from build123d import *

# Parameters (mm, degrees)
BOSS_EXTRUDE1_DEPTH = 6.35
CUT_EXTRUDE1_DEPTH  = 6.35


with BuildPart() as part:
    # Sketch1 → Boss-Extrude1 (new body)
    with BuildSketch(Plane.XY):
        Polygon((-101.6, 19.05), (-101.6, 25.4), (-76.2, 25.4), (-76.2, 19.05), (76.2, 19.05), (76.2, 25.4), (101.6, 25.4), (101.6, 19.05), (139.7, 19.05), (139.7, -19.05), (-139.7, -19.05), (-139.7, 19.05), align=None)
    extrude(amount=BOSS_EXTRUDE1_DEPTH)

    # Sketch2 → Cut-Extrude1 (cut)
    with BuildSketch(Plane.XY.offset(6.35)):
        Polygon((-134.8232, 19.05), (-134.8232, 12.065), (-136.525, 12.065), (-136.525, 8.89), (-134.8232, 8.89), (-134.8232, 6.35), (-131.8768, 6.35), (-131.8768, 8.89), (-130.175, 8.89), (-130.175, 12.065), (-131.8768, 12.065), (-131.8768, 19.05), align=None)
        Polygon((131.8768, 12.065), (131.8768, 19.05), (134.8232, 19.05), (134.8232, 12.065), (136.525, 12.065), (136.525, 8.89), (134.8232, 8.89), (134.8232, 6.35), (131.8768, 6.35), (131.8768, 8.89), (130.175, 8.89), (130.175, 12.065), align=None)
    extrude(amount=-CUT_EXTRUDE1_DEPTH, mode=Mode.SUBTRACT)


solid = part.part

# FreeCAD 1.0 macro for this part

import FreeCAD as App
import Part
import Sketcher
from FreeCAD import Vector
Q = App.Units.Quantity

doc = App.newDocument("Part")
body = doc.addObject("PartDesign::Body", "Body")

# Sketch on XY plane
sketch1 = body.newObject("Sketcher::SketchObject", "Sketch")
sketch1.AttachmentSupport = (doc.getObject("XY_Plane"), [""])
sketch1.MapMode = "FlatFace"
sketch1.addGeometry([
    Part.LineSegment(Vector(-101.6, 25.4, 0), Vector(-101.6, 19.05, 0)),  # 0
    Part.LineSegment(Vector(-101.6, 19.05, 0), Vector(-139.7, 19.05, 0)),  # 1
    Part.LineSegment(Vector(-139.7, 19.05, 0), Vector(-139.7, -19.05, 0)),  # 2
    Part.LineSegment(Vector(-139.7, -19.05, 0), Vector(139.7, -19.05, 0)),  # 3
    Part.LineSegment(Vector(139.7, -19.05, 0), Vector(139.7, 19.05, 0)),  # 4
    Part.LineSegment(Vector(139.7, 19.05, 0), Vector(101.6, 19.05, 0)),  # 5
    Part.LineSegment(Vector(101.6, 19.05, 0), Vector(101.6, 25.4, 0)),  # 6
    Part.LineSegment(Vector(101.6, 25.4, 0), Vector(76.2, 25.4, 0)),  # 7
    Part.LineSegment(Vector(76.2, 25.4, 0), Vector(76.2, 19.05, 0)),  # 8
    Part.LineSegment(Vector(76.2, 19.05, 0), Vector(-76.2, 19.05, 0)),  # 9
    Part.LineSegment(Vector(-76.2, 19.05, 0), Vector(-76.2, 25.4, 0)),  # 10
    Part.LineSegment(Vector(-76.2, 25.4, 0), Vector(-101.6, 25.4, 0)),  # 11
], False)
sketch1.addConstraint([
    Sketcher.Constraint("Coincident", 0, 2, 1, 1),
    Sketcher.Constraint("Coincident", 1, 2, 2, 1),
    Sketcher.Constraint("Coincident", 2, 2, 3, 1),
    Sketcher.Constraint("Coincident", 3, 2, 4, 1),
    Sketcher.Constraint("Coincident", 4, 2, 5, 1),
    Sketcher.Constraint("Coincident", 5, 2, 6, 1),
    Sketcher.Constraint("Coincident", 6, 2, 7, 1),
    Sketcher.Constraint("Coincident", 7, 2, 8, 1),
    Sketcher.Constraint("Coincident", 8, 2, 9, 1),
    Sketcher.Constraint("Coincident", 9, 2, 10, 1),
    Sketcher.Constraint("Coincident", 10, 2, 11, 1),
    Sketcher.Constraint("Coincident", 11, 2, 0, 1),
    Sketcher.Constraint("Vertical", 0),
    Sketcher.Constraint("Horizontal", 1),
    Sketcher.Constraint("Vertical", 2),
    Sketcher.Constraint("Horizontal", 3),
    Sketcher.Constraint("Vertical", 4),
    Sketcher.Constraint("Horizontal", 5),
    Sketcher.Constraint("Vertical", 6),
    Sketcher.Constraint("Horizontal", 7),
    Sketcher.Constraint("Vertical", 8),
    Sketcher.Constraint("Horizontal", 9),
    Sketcher.Constraint("Vertical", 10),
    Sketcher.Constraint("Horizontal", 11),
    Sketcher.Constraint("Symmetric", 1, 2, 3, 2, -1, 1),
    Sketcher.Constraint("Symmetric", 0, 2, 5, 2, -2),
    Sketcher.Constraint("Symmetric", 7, 2, 10, 2, -2),
    Sketcher.Constraint("Horizontal", 5, 2, 8, 2),
    Sketcher.Constraint("Equal", 5, 2),
    Sketcher.Constraint("DistanceX", 3, 1, 3, 2, Q("11 in")),
    Sketcher.Constraint("DistanceX", 7, 2, 7, 1, Q("1 in")),
    Sketcher.Constraint("DistanceX", 9, 2, 9, 1, Q("6 in")),
    Sketcher.Constraint("DistanceY", -1, 1, 6, 2, Q("1 in")),
])
pad1 = body.newObject("PartDesign::Pad", "Pad")
pad1.Profile = sketch1
pad1.Length = Q("0.25 in")

# Sketch on XY plane
sketch2 = body.newObject("Sketcher::SketchObject", "Sketch001")
sketch2.AttachmentSupport = (doc.getObject("XY_Plane"), [""])
sketch2.MapMode = "FlatFace"
sketch2.AttachmentOffset = App.Placement(Vector(0, 0, 0.25 * 25.4), App.Rotation())
sketch2.addGeometry([
    Part.LineSegment(Vector(-134.8232, 19.05, 0), Vector(-134.8232, 12.065, 0)),  # 0
    Part.LineSegment(Vector(-134.8232, 12.065, 0), Vector(-136.525, 12.065, 0)),  # 1
    Part.LineSegment(Vector(-136.525, 12.065, 0), Vector(-136.525, 8.89, 0)),  # 2
    Part.LineSegment(Vector(-136.525, 8.89, 0), Vector(-134.8232, 8.89, 0)),  # 3
    Part.LineSegment(Vector(-134.8232, 8.89, 0), Vector(-134.8232, 6.35, 0)),  # 4
    Part.LineSegment(Vector(-134.8232, 6.35, 0), Vector(-131.8768, 6.35, 0)),  # 5
    Part.LineSegment(Vector(-131.8768, 6.35, 0), Vector(-131.8768, 8.89, 0)),  # 6
    Part.LineSegment(Vector(-131.8768, 8.89, 0), Vector(-130.175, 8.89, 0)),  # 7
    Part.LineSegment(Vector(-130.175, 8.89, 0), Vector(-130.175, 12.065, 0)),  # 8
    Part.LineSegment(Vector(-130.175, 12.065, 0), Vector(-131.8768, 12.065, 0)),  # 9
    Part.LineSegment(Vector(-131.8768, 12.065, 0), Vector(-131.8768, 19.05, 0)),  # 10
    Part.LineSegment(Vector(-131.8768, 19.05, 0), Vector(-134.8232, 19.05, 0)),  # 11
    Part.LineSegment(Vector(131.8768, 19.05, 0), Vector(131.8768, 12.065, 0)),  # 12
    Part.LineSegment(Vector(131.8768, 12.065, 0), Vector(130.175, 12.065, 0)),  # 13
    Part.LineSegment(Vector(130.175, 12.065, 0), Vector(130.175, 8.89, 0)),  # 14
    Part.LineSegment(Vector(130.175, 8.89, 0), Vector(131.8768, 8.89, 0)),  # 15
    Part.LineSegment(Vector(131.8768, 8.89, 0), Vector(131.8768, 6.35, 0)),  # 16
    Part.LineSegment(Vector(131.8768, 6.35, 0), Vector(134.8232, 6.35, 0)),  # 17
    Part.LineSegment(Vector(134.8232, 6.35, 0), Vector(134.8232, 8.89, 0)),  # 18
    Part.LineSegment(Vector(134.8232, 8.89, 0), Vector(136.525, 8.89, 0)),  # 19
    Part.LineSegment(Vector(136.525, 8.89, 0), Vector(136.525, 12.065, 0)),  # 20
    Part.LineSegment(Vector(136.525, 12.065, 0), Vector(134.8232, 12.065, 0)),  # 21
    Part.LineSegment(Vector(134.8232, 12.065, 0), Vector(134.8232, 19.05, 0)),  # 22
    Part.LineSegment(Vector(134.8232, 19.05, 0), Vector(131.8768, 19.05, 0)),  # 23
], False)
sketch2.addConstraint([
    Sketcher.Constraint("Coincident", 0, 2, 1, 1),
    Sketcher.Constraint("Coincident", 1, 2, 2, 1),
    Sketcher.Constraint("Coincident", 2, 2, 3, 1),
    Sketcher.Constraint("Coincident", 3, 2, 4, 1),
    Sketcher.Constraint("Coincident", 4, 2, 5, 1),
    Sketcher.Constraint("Coincident", 5, 2, 6, 1),
    Sketcher.Constraint("Coincident", 6, 2, 7, 1),
    Sketcher.Constraint("Coincident", 7, 2, 8, 1),
    Sketcher.Constraint("Coincident", 8, 2, 9, 1),
    Sketcher.Constraint("Coincident", 9, 2, 10, 1),
    Sketcher.Constraint("Coincident", 10, 2, 11, 1),
    Sketcher.Constraint("Coincident", 11, 2, 0, 1),
    Sketcher.Constraint("Coincident", 12, 2, 13, 1),
    Sketcher.Constraint("Coincident", 13, 2, 14, 1),
    Sketcher.Constraint("Coincident", 14, 2, 15, 1),
    Sketcher.Constraint("Coincident", 15, 2, 16, 1),
    Sketcher.Constraint("Coincident", 16, 2, 17, 1),
    Sketcher.Constraint("Coincident", 17, 2, 18, 1),
    Sketcher.Constraint("Coincident", 18, 2, 19, 1),
    Sketcher.Constraint("Coincident", 19, 2, 20, 1),
    Sketcher.Constraint("Coincident", 20, 2, 21, 1),
    Sketcher.Constraint("Coincident", 21, 2, 22, 1),
    Sketcher.Constraint("Coincident", 22, 2, 23, 1),
    Sketcher.Constraint("Coincident", 23, 2, 12, 1),
    Sketcher.Constraint("Vertical", 0),
    Sketcher.Constraint("Horizontal", 1),
    Sketcher.Constraint("Vertical", 2),
    Sketcher.Constraint("Horizontal", 3),
    Sketcher.Constraint("Vertical", 4),
    Sketcher.Constraint("Horizontal", 5),
    Sketcher.Constraint("Vertical", 6),
    Sketcher.Constraint("Horizontal", 7),
    Sketcher.Constraint("Vertical", 8),
    Sketcher.Constraint("Horizontal", 9),
    Sketcher.Constraint("Vertical", 10),
    Sketcher.Constraint("Horizontal", 11),
    Sketcher.Constraint("Vertical", 12),
    Sketcher.Constraint("Horizontal", 13),
    Sketcher.Constraint("Vertical", 14),
    Sketcher.Constraint("Horizontal", 15),
    Sketcher.Constraint("Vertical", 16),
    Sketcher.Constraint("Horizontal", 17),
    Sketcher.Constraint("Vertical", 18),
    Sketcher.Constraint("Horizontal", 19),
    Sketcher.Constraint("Vertical", 20),
    Sketcher.Constraint("Horizontal", 21),
    Sketcher.Constraint("Vertical", 22),
    Sketcher.Constraint("Horizontal", 23),
    Sketcher.Constraint("Symmetric", 9, 2, 12, 2, -2),
    Sketcher.Constraint("Symmetric", 7, 2, 14, 2, -2),
    Sketcher.Constraint("Symmetric", 5, 2, 16, 2, -2),
    Sketcher.Constraint("Symmetric", 3, 2, 18, 2, -2),
    Sketcher.Constraint("Symmetric", 1, 2, 20, 2, -2),
    Sketcher.Constraint("Symmetric", 11, 2, 22, 2, -2),
    Sketcher.Constraint("Horizontal", 3, 2, 6, 2),
    Sketcher.Constraint("Horizontal", 1, 2, 8, 2),
    Sketcher.Constraint("Vertical", 0, 2, 3, 2),
    Sketcher.Constraint("Vertical", 6, 2, 9, 2),
    Sketcher.Constraint("Equal", 3, 7),
    Sketcher.Constraint("DistanceY", 4, 2, 4, 1, Q("0.1 in")),
    Sketcher.Constraint("DistanceY", 6, 2, 10, 2, Q("0.4 in")),
    Sketcher.Constraint("DistanceX", 1, 2, 1, 1, Q("0.067 in")),
    Sketcher.Constraint("DistanceX", 5, 1, 5, 2, Q("0.116 in")),
    Sketcher.Constraint("DistanceY", 0, 2, 0, 1, Q("0.275 in")),
    Sketcher.Constraint("DistanceY", -1, 1, 2, 2, Q("0.35 in")),
    Sketcher.Constraint("DistanceX", 8, 2, 13, 2, Q("10.25 in")),
])
pocket1 = body.newObject("PartDesign::Pocket", "Pocket")
pocket1.Profile = sketch2
pocket1.Length = Q("0.25 in")

doc.recompute()
